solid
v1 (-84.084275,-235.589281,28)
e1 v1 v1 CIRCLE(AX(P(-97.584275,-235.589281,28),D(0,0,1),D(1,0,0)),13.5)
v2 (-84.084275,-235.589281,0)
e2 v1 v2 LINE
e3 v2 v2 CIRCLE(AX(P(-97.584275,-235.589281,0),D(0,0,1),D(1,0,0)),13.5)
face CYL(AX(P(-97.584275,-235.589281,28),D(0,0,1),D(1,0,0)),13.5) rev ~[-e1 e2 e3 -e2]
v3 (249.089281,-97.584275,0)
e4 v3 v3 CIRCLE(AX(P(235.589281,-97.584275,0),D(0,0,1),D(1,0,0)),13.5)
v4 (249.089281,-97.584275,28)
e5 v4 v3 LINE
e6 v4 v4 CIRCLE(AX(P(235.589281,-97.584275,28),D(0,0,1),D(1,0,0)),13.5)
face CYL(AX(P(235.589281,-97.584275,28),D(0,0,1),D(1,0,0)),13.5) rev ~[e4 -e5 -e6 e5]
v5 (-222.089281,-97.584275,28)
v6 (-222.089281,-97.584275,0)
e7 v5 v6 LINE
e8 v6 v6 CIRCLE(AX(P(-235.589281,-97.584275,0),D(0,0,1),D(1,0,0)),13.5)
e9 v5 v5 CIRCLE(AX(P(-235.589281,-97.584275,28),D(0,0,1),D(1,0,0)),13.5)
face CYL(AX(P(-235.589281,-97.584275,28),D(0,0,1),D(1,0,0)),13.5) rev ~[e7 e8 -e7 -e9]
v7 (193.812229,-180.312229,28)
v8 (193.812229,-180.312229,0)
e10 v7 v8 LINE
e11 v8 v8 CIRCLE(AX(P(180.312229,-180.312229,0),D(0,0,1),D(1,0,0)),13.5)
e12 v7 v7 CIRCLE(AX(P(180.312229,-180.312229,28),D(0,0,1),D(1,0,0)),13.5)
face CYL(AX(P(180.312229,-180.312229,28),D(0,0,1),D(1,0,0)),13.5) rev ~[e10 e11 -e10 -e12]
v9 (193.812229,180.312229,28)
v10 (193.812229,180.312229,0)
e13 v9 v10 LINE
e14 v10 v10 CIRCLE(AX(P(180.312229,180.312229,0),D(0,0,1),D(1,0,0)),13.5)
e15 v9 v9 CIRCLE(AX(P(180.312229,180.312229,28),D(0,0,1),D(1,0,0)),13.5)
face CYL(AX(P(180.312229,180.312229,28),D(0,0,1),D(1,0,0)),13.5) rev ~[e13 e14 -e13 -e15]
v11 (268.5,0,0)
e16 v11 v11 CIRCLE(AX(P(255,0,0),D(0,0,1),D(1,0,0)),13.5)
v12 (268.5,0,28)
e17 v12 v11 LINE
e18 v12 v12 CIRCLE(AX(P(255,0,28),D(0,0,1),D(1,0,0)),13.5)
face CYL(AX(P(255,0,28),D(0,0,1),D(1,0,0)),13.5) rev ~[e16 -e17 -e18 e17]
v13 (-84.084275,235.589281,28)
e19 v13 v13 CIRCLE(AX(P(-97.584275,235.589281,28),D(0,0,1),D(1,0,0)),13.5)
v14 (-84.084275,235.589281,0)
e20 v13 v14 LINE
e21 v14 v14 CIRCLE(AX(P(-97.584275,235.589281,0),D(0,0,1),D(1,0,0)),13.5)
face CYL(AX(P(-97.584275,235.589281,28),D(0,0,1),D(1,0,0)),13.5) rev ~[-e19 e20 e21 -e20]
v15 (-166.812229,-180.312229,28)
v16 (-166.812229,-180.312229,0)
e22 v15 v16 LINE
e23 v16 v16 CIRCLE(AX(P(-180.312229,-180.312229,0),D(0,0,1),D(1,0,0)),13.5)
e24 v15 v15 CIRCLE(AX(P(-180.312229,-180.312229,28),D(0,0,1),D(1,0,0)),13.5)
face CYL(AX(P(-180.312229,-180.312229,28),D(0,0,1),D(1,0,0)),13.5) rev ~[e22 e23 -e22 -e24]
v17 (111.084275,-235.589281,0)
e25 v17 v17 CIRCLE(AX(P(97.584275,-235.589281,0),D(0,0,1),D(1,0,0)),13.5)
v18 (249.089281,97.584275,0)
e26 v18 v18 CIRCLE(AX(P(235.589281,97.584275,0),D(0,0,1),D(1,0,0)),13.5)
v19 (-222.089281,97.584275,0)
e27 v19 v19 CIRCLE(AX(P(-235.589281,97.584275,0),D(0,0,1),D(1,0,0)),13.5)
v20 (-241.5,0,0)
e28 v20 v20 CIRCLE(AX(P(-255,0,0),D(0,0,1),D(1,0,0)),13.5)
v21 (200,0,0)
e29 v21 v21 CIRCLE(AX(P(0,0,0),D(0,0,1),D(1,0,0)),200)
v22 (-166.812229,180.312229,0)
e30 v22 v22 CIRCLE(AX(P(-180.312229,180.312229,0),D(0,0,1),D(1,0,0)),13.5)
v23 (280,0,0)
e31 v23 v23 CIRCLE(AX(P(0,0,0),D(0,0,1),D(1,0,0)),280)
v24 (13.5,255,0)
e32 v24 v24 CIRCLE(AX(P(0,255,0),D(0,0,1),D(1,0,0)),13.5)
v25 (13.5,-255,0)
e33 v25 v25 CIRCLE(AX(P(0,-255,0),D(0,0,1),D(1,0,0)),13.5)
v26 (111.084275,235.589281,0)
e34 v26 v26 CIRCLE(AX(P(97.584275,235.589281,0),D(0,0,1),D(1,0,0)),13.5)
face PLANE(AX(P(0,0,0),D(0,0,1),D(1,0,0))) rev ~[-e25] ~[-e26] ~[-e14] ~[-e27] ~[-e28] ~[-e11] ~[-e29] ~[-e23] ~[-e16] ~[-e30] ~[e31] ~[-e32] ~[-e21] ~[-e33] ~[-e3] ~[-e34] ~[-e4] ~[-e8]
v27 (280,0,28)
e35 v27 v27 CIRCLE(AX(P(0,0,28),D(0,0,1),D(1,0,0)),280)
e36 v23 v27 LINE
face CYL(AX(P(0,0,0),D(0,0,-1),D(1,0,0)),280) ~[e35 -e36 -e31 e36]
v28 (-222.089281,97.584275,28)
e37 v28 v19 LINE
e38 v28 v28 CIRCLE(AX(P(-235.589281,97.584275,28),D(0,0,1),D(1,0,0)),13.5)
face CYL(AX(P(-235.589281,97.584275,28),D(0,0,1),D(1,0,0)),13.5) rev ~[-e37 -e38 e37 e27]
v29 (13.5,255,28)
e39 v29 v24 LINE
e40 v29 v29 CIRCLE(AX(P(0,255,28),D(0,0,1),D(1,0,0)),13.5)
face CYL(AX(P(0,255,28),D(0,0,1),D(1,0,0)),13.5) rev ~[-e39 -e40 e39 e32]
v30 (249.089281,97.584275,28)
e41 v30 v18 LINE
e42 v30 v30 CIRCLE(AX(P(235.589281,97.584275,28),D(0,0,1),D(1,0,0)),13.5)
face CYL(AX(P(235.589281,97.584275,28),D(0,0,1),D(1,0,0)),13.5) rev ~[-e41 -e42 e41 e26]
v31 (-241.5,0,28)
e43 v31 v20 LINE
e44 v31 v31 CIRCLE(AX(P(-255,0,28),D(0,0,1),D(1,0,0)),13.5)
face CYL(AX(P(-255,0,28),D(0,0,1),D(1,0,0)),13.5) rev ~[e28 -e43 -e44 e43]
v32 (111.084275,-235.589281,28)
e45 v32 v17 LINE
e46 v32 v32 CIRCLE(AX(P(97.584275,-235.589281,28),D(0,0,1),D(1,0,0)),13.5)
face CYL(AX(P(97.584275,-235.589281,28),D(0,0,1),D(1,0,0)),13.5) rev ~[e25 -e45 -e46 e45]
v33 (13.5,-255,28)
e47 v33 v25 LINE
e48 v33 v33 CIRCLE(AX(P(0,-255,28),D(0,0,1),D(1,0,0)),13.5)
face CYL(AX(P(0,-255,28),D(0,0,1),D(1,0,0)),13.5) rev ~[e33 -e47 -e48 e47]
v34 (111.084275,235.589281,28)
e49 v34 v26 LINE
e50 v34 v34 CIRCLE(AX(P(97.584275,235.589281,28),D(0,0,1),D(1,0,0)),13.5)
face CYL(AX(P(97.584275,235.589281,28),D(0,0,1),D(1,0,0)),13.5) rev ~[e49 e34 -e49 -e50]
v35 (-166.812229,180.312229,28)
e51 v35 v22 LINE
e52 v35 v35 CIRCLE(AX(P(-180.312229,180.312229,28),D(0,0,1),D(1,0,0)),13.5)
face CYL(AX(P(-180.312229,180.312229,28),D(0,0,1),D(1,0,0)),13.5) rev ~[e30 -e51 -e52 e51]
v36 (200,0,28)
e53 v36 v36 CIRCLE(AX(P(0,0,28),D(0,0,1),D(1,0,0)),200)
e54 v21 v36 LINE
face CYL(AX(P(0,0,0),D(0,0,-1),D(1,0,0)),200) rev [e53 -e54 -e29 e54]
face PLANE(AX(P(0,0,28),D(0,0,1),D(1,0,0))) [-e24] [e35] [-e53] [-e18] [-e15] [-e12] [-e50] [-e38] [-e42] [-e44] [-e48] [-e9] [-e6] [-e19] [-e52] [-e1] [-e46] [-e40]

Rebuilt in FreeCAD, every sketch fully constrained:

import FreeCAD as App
import Part
import Sketcher

doc = App.newDocument("Part")
body = doc.addObject("PartDesign::Body", "Body")

sketch1 = doc.addObject("Sketcher::SketchObject", "Sketch")
body.addObject(sketch1)
sketch1.AttachmentSupport = (doc.XY_Plane, [""])
sketch1.MapMode = "FlatFace"
sketch1.addGeometry(Part.Circle(App.Vector(0, 0, 0), App.Vector(0, 0, 1), 280), False)
sketch1.addGeometry(Part.Circle(App.Vector(0, 0, 0), App.Vector(0, 0, 1), 200), False)
sketch1.addConstraint(Sketcher.Constraint("Coincident", 0, 3, -1, 1))
sketch1.addConstraint(Sketcher.Constraint("Coincident", 1, 3, -1, 1))
sketch1.addConstraint(Sketcher.Constraint("Diameter", 0, 560.0))
sketch1.addConstraint(Sketcher.Constraint("Diameter", 1, 400.0))
pad1 = doc.addObject("PartDesign::Pad", "Pad")
body.addObject(pad1)
pad1.Profile = sketch1
pad1.Length = 28

sketch2 = doc.addObject("Sketcher::SketchObject", "Sketch001")
body.addObject(sketch2)
sketch2.AttachmentSupport = (doc.XY_Plane, [""])
sketch2.MapMode = "FlatFace"
sketch2.AttachmentOffset = App.Placement(App.Vector(0, 0, 28), App.Rotation())
sketch2.addGeometry(Part.Circle(App.Vector(255, 0, 0), App.Vector(0, 0, 1), 14), False)
sketch2.addGeometry(Part.Circle(App.Vector(236, 98, 0), App.Vector(0, 0, 1), 14), False)
sketch2.addGeometry(Part.Circle(App.Vector(180, 180, 0), App.Vector(0, 0, 1), 14), False)
sketch2.addGeometry(Part.Circle(App.Vector(98, 236, 0), App.Vector(0, 0, 1), 14), False)
sketch2.addGeometry(Part.Circle(App.Vector(0, 255, 0), App.Vector(0, 0, 1), 14), False)
sketch2.addGeometry(Part.Circle(App.Vector(-98, 236, 0), App.Vector(0, 0, 1), 14), False)
sketch2.addGeometry(Part.Circle(App.Vector(-180, 180, 0), App.Vector(0, 0, 1), 14), False)
sketch2.addGeometry(Part.Circle(App.Vector(-236, 98, 0), App.Vector(0, 0, 1), 14), False)
sketch2.addGeometry(Part.Circle(App.Vector(-255, 0, 0), App.Vector(0, 0, 1), 14), False)
sketch2.addGeometry(Part.Circle(App.Vector(-236, -98, 0), App.Vector(0, 0, 1), 14), False)
sketch2.addGeometry(Part.Circle(App.Vector(-180, -180, 0), App.Vector(0, 0, 1), 14), False)
sketch2.addGeometry(Part.Circle(App.Vector(-98, -236, 0), App.Vector(0, 0, 1), 14), False)
sketch2.addGeometry(Part.Circle(App.Vector(0, -255, 0), App.Vector(0, 0, 1), 14), False)
sketch2.addGeometry(Part.Circle(App.Vector(98, -236, 0), App.Vector(0, 0, 1), 14), False)
sketch2.addGeometry(Part.Circle(App.Vector(180, -180, 0), App.Vector(0, 0, 1), 14), False)
sketch2.addGeometry(Part.Circle(App.Vector(236, -98, 0), App.Vector(0, 0, 1), 14), False)
sketch2.addConstraint(Sketcher.Constraint("Equal", 0, 1))
sketch2.addConstraint(Sketcher.Constraint("Equal", 1, 2))
sketch2.addConstraint(Sketcher.Constraint("Equal", 2, 3))
sketch2.addConstraint(Sketcher.Constraint("Equal", 3, 4))
sketch2.addConstraint(Sketcher.Constraint("Equal", 4, 5))
sketch2.addConstraint(Sketcher.Constraint("Equal", 5, 6))
sketch2.addConstraint(Sketcher.Constraint("Equal", 6, 7))
sketch2.addConstraint(Sketcher.Constraint("Equal", 7, 8))
sketch2.addConstraint(Sketcher.Constraint("Equal", 8, 9))
sketch2.addConstraint(Sketcher.Constraint("Equal", 9, 10))
sketch2.addConstraint(Sketcher.Constraint("Equal", 10, 11))
sketch2.addConstraint(Sketcher.Constraint("Equal", 11, 12))
sketch2.addConstraint(Sketcher.Constraint("Equal", 12, 13))
sketch2.addConstraint(Sketcher.Constraint("Equal", 13, 14))
sketch2.addConstraint(Sketcher.Constraint("Equal", 14, 15))
sketch2.addConstraint(Sketcher.Constraint("Symmetric", 0, 3, 8, 3, -1, 1))
sketch2.addConstraint(Sketcher.Constraint("Symmetric", 1, 3, 9, 3, -1, 1))
sketch2.addConstraint(Sketcher.Constraint("Symmetric", 2, 3, 10, 3, -1, 1))
sketch2.addConstraint(Sketcher.Constraint("Symmetric", 3, 3, 11, 3, -1, 1))
sketch2.addConstraint(Sketcher.Constraint("Symmetric", 4, 3, 12, 3, -1, 1))
sketch2.addConstraint(Sketcher.Constraint("Symmetric", 5, 3, 13, 3, -1, 1))
sketch2.addConstraint(Sketcher.Constraint("Symmetric", 6, 3, 14, 3, -1, 1))
sketch2.addConstraint(Sketcher.Constraint("Symmetric", 7, 3, 15, 3, -1, 1))
sketch2.addConstraint(Sketcher.Constraint("Symmetric", 3, 3, 5, 3, -2))
sketch2.addConstraint(Sketcher.Constraint("Symmetric", 2, 3, 6, 3, -2))
sketch2.addConstraint(Sketcher.Constraint("Symmetric", 1, 3, 7, 3, -2))
sketch2.addConstraint(Sketcher.Constraint("PointOnObject", 0, 3, -1))
sketch2.addConstraint(Sketcher.Constraint("PointOnObject", 4, 3, -2))
sketch2.addConstraint(Sketcher.Constraint("Diameter", 0, 27.0))
sketch2.addConstraint(Sketcher.Constraint("DistanceX", -1, 1, 0, 3, 255.0))
sketch2.addConstraint(Sketcher.Constraint("DistanceY", -1, 1, 4, 3, 255.0))
sketch2.addConstraint(Sketcher.Constraint("DistanceX", -1, 1, 1, 3, 235.589281))
sketch2.addConstraint(Sketcher.Constraint("DistanceX", -1, 1, 2, 3, 180.312229))
sketch2.addConstraint(Sketcher.Constraint("DistanceY", -1, 1, 2, 3, 180.312229))
sketch2.addConstraint(Sketcher.Constraint("DistanceY", -1, 1, 3, 3, 235.589281))
sketch2.addConstraint(Sketcher.Constraint("DistanceX", 5, 3, 3, 3, 195.16855))
sketch2.addConstraint(Sketcher.Constraint("DistanceY", 9, 3, 7, 3, 195.16855))
pocket1 = doc.addObject("PartDesign::Pocket", "Pocket")
body.addObject(pocket1)
pocket1.Profile = sketch2
pocket1.Type = "ThroughAll"

doc.recompute()
